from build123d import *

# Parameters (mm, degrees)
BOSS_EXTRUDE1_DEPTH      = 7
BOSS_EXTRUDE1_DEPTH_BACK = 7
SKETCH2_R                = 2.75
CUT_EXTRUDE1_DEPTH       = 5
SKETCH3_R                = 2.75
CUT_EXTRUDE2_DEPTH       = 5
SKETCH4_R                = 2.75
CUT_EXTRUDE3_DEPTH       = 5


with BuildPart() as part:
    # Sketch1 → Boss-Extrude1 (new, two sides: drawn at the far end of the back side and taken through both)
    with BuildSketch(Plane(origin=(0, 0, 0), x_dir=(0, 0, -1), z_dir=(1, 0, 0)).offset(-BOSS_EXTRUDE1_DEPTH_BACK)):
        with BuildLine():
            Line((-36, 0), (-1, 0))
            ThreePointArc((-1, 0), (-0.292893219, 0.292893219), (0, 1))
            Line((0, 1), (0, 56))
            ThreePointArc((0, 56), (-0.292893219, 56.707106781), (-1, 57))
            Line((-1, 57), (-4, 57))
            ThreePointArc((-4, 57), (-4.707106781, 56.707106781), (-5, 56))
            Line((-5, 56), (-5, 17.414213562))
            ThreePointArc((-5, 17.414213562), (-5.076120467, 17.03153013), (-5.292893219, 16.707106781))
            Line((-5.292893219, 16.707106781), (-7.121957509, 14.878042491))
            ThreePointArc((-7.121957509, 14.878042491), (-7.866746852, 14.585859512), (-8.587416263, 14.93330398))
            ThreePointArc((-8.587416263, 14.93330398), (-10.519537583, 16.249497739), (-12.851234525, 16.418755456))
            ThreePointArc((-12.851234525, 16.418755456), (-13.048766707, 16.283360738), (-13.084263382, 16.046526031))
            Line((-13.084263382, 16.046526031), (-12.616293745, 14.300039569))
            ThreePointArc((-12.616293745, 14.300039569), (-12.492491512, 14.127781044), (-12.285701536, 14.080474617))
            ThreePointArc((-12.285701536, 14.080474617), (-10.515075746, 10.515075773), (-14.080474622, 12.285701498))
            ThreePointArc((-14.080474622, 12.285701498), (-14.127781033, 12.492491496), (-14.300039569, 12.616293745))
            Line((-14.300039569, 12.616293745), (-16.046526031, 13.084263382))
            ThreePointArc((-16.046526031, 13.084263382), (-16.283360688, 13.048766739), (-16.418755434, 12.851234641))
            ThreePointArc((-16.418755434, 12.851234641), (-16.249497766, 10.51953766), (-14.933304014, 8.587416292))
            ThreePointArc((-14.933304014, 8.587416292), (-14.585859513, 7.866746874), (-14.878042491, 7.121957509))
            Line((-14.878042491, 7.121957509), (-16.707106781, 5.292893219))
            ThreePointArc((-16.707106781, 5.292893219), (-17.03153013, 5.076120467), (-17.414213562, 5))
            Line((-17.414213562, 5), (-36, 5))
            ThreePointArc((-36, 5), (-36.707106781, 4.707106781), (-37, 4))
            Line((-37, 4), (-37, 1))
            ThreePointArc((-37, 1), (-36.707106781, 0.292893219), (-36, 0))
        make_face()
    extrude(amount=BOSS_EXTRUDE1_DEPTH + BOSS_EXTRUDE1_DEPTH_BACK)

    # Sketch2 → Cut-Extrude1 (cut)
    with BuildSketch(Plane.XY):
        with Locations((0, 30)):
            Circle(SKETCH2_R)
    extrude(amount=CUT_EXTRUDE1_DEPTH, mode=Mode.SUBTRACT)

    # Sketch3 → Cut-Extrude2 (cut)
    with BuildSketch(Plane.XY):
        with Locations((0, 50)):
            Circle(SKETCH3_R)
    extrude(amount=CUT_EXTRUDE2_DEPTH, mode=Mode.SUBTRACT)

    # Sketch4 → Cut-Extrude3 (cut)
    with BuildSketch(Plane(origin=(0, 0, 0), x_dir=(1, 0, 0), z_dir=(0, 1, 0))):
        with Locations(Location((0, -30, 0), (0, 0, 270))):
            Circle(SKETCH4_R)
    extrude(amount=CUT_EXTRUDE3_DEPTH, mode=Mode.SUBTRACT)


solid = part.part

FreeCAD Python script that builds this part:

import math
import FreeCAD as App
import Part
import Sketcher
from FreeCAD import Vector
Q = App.Units.Quantity

doc = App.newDocument("Part")
body = doc.addObject("PartDesign::Body", "Body")

# Sketch on YZ plane
sketch1 = body.newObject("Sketcher::SketchObject", "Sketch")
sketch1.AttachmentSupport = (doc.getObject("YZ_Plane"), [""])
sketch1.MapMode = "FlatFace"
sketch1.addGeometry(Part.LineSegment(Vector(0, 36, 0), Vector(0, 1, 0)), False)
sketch1.addGeometry(Part.ArcOfCircle(Part.Circle(Vector(1, 1, 0), Vector(0, 0, 1), 1), math.radians(-180), math.radians(-90)), False)
sketch1.addGeometry(Part.LineSegment(Vector(1, 0, 0), Vector(56, 0, 0)), False)
sketch1.addGeometry(Part.ArcOfCircle(Part.Circle(Vector(56, 1, 0), Vector(0, 0, 1), 1), math.radians(-90), math.radians(0)), False)
sketch1.addGeometry(Part.LineSegment(Vector(57, 1, 0), Vector(57, 4, 0)), False)
sketch1.addGeometry(Part.ArcOfCircle(Part.Circle(Vector(56, 4, 0), Vector(0, 0, 1), 1), math.radians(0), math.radians(90)), False)
sketch1.addGeometry(Part.LineSegment(Vector(56, 5, 0), Vector(17.41, 5, 0)), False)
sketch1.addGeometry(Part.ArcOfCircle(Part.Circle(Vector(17.41, 6, 0), Vector(0, 0, 1), 1), math.radians(-135), math.radians(-90)), False)
sketch1.addGeometry(Part.LineSegment(Vector(16.71, 5.29, 0), Vector(14.88, 7.12, 0)), False)
sketch1.addGeometry(Part.ArcOfCircle(Part.Circle(Vector(15.59, 7.83, 0), Vector(0, 0, 1), 1), math.radians(131), math.radians(225)), False)
sketch1.addGeometry(Part.ArcOfCircle(Part.Circle(Vector(12, 12, 0), Vector(0, 0, 1), 4.5), math.radians(-49), math.radians(11)), False)
sketch1.addGeometry(Part.ArcOfCircle(Part.Circle(Vector(16.12, 12.79, 0), Vector(0, 0, 1), 0.3), math.radians(11), math.radians(105)), False)
sketch1.addGeometry(Part.LineSegment(Vector(16.05, 13.08, 0), Vector(14.3, 12.62, 0)), False)
sketch1.addGeometry(Part.ArcOfCircle(Part.Circle(Vector(14.38, 12.33, 0), Vector(0, 0, 1), 0.3), math.radians(105), math.radians(188)), False)
sketch1.addGeometry(Part.ArcOfCircle(Part.Circle(Vector(12, 12, 0), Vector(0, 0, 1), 2.1), math.radians(82), math.radians(368)), False)
sketch1.addGeometry(Part.ArcOfCircle(Part.Circle(Vector(12.33, 14.38, 0), Vector(0, 0, 1), 0.3), math.radians(-98), math.radians(-15)), False)
sketch1.addGeometry(Part.LineSegment(Vector(12.62, 14.3, 0), Vector(13.08, 16.05, 0)), False)
sketch1.addGeometry(Part.ArcOfCircle(Part.Circle(Vector(12.79, 16.12, 0), Vector(0, 0, 1), 0.3), math.radians(-15), math.radians(79)), False)
sketch1.addGeometry(Part.ArcOfCircle(Part.Circle(Vector(12, 12, 0), Vector(0, 0, 1), 4.5), math.radians(79), math.radians(139)), False)
sketch1.addGeometry(Part.ArcOfCircle(Part.Circle(Vector(7.83, 15.59, 0), Vector(0, 0, 1), 1), math.radians(-135), math.radians(-41)), False)
sketch1.addGeometry(Part.LineSegment(Vector(7.12, 14.88, 0), Vector(5.29, 16.71, 0)), False)
sketch1.addGeometry(Part.ArcOfCircle(Part.Circle(Vector(6, 17.41, 0), Vector(0, 0, 1), 1), math.radians(180), math.radians(225)), False)
sketch1.addGeometry(Part.LineSegment(Vector(5, 17.41, 0), Vector(5, 36, 0)), False)
sketch1.addGeometry(Part.ArcOfCircle(Part.Circle(Vector(4, 36, 0), Vector(0, 0, 1), 1), math.radians(0), math.radians(90)), False)
sketch1.addGeometry(Part.LineSegment(Vector(4, 37, 0), Vector(1, 37, 0)), False)
sketch1.addGeometry(Part.ArcOfCircle(Part.Circle(Vector(1, 36, 0), Vector(0, 0, 1), 1), math.radians(90), math.radians(180)), False)
sketch1.addConstraint(Sketcher.Constraint("Tangent", 0, 2, 1, 1))
sketch1.addConstraint(Sketcher.Constraint("Tangent", 1, 2, 2, 1))
sketch1.addConstraint(Sketcher.Constraint("Tangent", 2, 2, 3, 1))
sketch1.addConstraint(Sketcher.Constraint("Tangent", 3, 2, 4, 1))
sketch1.addConstraint(Sketcher.Constraint("Tangent", 4, 2, 5, 1))
sketch1.addConstraint(Sketcher.Constraint("Tangent", 5, 2, 6, 1))
sketch1.addConstraint(Sketcher.Constraint("Tangent", 6, 2, 7, 2))
sketch1.addConstraint(Sketcher.Constraint("Tangent", 7, 1, 8, 1))
sketch1.addConstraint(Sketcher.Constraint("Tangent", 8, 2, 9, 2))
sketch1.addConstraint(Sketcher.Constraint("Tangent", 9, 1, 10, 1))
sketch1.addConstraint(Sketcher.Constraint("Tangent", 10, 2, 11, 1))
sketch1.addConstraint(Sketcher.Constraint("Tangent", 11, 2, 12, 1))
sketch1.addConstraint(Sketcher.Constraint("Tangent", 12, 2, 13, 1))
sketch1.addConstraint(Sketcher.Constraint("Tangent", 13, 2, 14, 2))
sketch1.addConstraint(Sketcher.Constraint("Tangent", 14, 1, 15, 1))
sketch1.addConstraint(Sketcher.Constraint("Tangent", 15, 2, 16, 1))
sketch1.addConstraint(Sketcher.Constraint("Tangent", 16, 2, 17, 1))
sketch1.addConstraint(Sketcher.Constraint("Tangent", 17, 2, 18, 1))
sketch1.addConstraint(Sketcher.Constraint("Tangent", 18, 2, 19, 2))
sketch1.addConstraint(Sketcher.Constraint("Tangent", 19, 1, 20, 1))
sketch1.addConstraint(Sketcher.Constraint("Tangent", 20, 2, 21, 2))
sketch1.addConstraint(Sketcher.Constraint("Tangent", 21, 1, 22, 1))
sketch1.addConstraint(Sketcher.Constraint("Tangent", 22, 2, 23, 1))
sketch1.addConstraint(Sketcher.Constraint("Tangent", 23, 2, 24, 1))
sketch1.addConstraint(Sketcher.Constraint("Tangent", 24, 2, 25, 1))
sketch1.addConstraint(Sketcher.Constraint("Tangent", 25, 2, 0, 1))
sketch1.addConstraint(Sketcher.Constraint("Vertical", 0))
sketch1.addConstraint(Sketcher.Constraint("Horizontal", 2))
sketch1.addConstraint(Sketcher.Constraint("Vertical", 4))
sketch1.addConstraint(Sketcher.Constraint("Horizontal", 6))
sketch1.addConstraint(Sketcher.Constraint("Vertical", 22))
sketch1.addConstraint(Sketcher.Constraint("Horizontal", 24))
sketch1.addConstraint(Sketcher.Constraint("Coincident", 14, 3, 10, 3))
sketch1.addConstraint(Sketcher.Constraint("Coincident", 18, 3, 10, 3))
sketch1.addConstraint(Sketcher.Constraint("Equal", 1, 3))
sketch1.addConstraint(Sketcher.Constraint("Equal", 3, 5))
sketch1.addConstraint(Sketcher.Constraint("Equal", 5, 7))
sketch1.addConstraint(Sketcher.Constraint("Equal", 7, 9))
sketch1.addConstraint(Sketcher.Constraint("Equal", 11, 13))
sketch1.addConstraint(Sketcher.Constraint("Equal", 13, 15))
sketch1.addConstraint(Sketcher.Constraint("Equal", 15, 17))
sketch1.addConstraint(Sketcher.Constraint("Equal", 10, 18))
sketch1.addConstraint(Sketcher.Constraint("Equal", 9, 19))
sketch1.addConstraint(Sketcher.Constraint("Equal", 19, 21))
sketch1.addConstraint(Sketcher.Constraint("Equal", 21, 23))
sketch1.addConstraint(Sketcher.Constraint("Equal", 23, 25))
sketch1.addConstraint(Sketcher.Constraint("PointOnObject", 0, 2, -2))
sketch1.addConstraint(Sketcher.Constraint("PointOnObject", 1, 2, -1))
sketch1.addConstraint(Sketcher.Constraint("Parallel", 8, 20))
sketch1.addConstraint(Sketcher.Constraint("Equal", 24, 4))
sketch1.addConstraint(Sketcher.Constraint("Equal", 12, 16))
sketch1.addConstraint(Sketcher.Constraint("Equal", 8, 20))
sketch1.addConstraint(Sketcher.Constraint("Radius", 1, Q("1 mm")))
sketch1.addConstraint(Sketcher.Constraint("Radius", 10, Q("4.5 mm")))
sketch1.addConstraint(Sketcher.Constraint("Radius", 11, Q("0.3 mm")))
sketch1.addConstraint(Sketcher.Constraint("Radius", 14, Q("2.1 mm")))
sketch1.addConstraint(Sketcher.Constraint("DistanceX", 2, 1, 2, 2, Q("55 mm")))
sketch1.addConstraint(Sketcher.Constraint("DistanceX", 24, 2, 24, 1, Q("3 mm")))
sketch1.addConstraint(Sketcher.Constraint("DistanceY", 0, 2, 0, 1, Q("35 mm")))
sketch1.addConstraint(Sketcher.Constraint("Angle", 8, Q("135 deg")))
sketch1.addConstraint(Sketcher.Constraint("Angle", 12, Q("-165 deg")))
sketch1.addConstraint(Sketcher.Constraint("Angle", 16, Q("75 deg")))
sketch1.addConstraint(Sketcher.Constraint("DistanceX", -1, 1, 10, 3, Q("12 mm")))
sketch1.addConstraint(Sketcher.Constraint("DistanceY", -1, 1, 10, 3, Q("12 mm")))
sketch1.addConstraint(Sketcher.Constraint("DistanceY", -1, 1, 13, 2, Q("12.285702 mm")))
sketch1.addConstraint(Sketcher.Constraint("DistanceY", 9, 1, 13, 3, Q("3.7391 mm")))
pad1 = body.newObject("PartDesign::Pad", "Pad")
pad1.Profile = sketch1
pad1.Type = "TwoLengths"
pad1.Length = 7
pad1.Length2 = 7

# Sketch on XY plane
sketch2 = body.newObject("Sketcher::SketchObject", "Sketch001")
sketch2.AttachmentSupport = (doc.getObject("XY_Plane"), [""])
sketch2.MapMode = "FlatFace"
sketch2.addGeometry(Part.Circle(Vector(0, 30, 0), Vector(0, 0, 1), 2.8), False)
sketch2.addConstraint(Sketcher.Constraint("PointOnObject", 0, 3, -2))
sketch2.addConstraint(Sketcher.Constraint("Diameter", 0, Q("5.5 mm")))
sketch2.addConstraint(Sketcher.Constraint("DistanceY", -1, 1, 0, 3, Q("30 mm")))
pocket1 = body.newObject("PartDesign::Pocket", "Pocket")
pocket1.Profile = sketch2
pocket1.Length = 5
pocket1.Reversed = True

# Sketch on XY plane
sketch3 = body.newObject("Sketcher::SketchObject", "Sketch002")
sketch3.AttachmentSupport = (doc.getObject("XY_Plane"), [""])
sketch3.MapMode = "FlatFace"
sketch3.addGeometry(Part.Circle(Vector(0, 50, 0), Vector(0, 0, 1), 2.8), False)
sketch3.addConstraint(Sketcher.Constraint("PointOnObject", 0, 3, -2))
sketch3.addConstraint(Sketcher.Constraint("Diameter", 0, Q("5.5 mm")))
sketch3.addConstraint(Sketcher.Constraint("DistanceY", -1, 1, 0, 3, Q("50 mm")))
pocket2 = body.newObject("PartDesign::Pocket", "Pocket001")
pocket2.Profile = sketch3
pocket2.Length = 5
pocket2.Reversed = True

# Sketch on XZ plane
sketch4 = body.newObject("Sketcher::SketchObject", "Sketch003")
sketch4.AttachmentSupport = (doc.getObject("XZ_Plane"), [""])
sketch4.MapMode = "FlatFace"
sketch4.addGeometry(Part.Circle(Vector(0, 30, 0), Vector(0, 0, 1), 2.8), False)
sketch4.addConstraint(Sketcher.Constraint("PointOnObject", 0, 3, -2))
sketch4.addConstraint(Sketcher.Constraint("Diameter", 0, Q("5.5 mm")))
sketch4.addConstraint(Sketcher.Constraint("DistanceY", -1, 1, 0, 3, Q("30 mm")))
pocket3 = body.newObject("PartDesign::Pocket", "Pocket002")
pocket3.Profile = sketch4
pocket3.Length = 5

doc.recompute()
